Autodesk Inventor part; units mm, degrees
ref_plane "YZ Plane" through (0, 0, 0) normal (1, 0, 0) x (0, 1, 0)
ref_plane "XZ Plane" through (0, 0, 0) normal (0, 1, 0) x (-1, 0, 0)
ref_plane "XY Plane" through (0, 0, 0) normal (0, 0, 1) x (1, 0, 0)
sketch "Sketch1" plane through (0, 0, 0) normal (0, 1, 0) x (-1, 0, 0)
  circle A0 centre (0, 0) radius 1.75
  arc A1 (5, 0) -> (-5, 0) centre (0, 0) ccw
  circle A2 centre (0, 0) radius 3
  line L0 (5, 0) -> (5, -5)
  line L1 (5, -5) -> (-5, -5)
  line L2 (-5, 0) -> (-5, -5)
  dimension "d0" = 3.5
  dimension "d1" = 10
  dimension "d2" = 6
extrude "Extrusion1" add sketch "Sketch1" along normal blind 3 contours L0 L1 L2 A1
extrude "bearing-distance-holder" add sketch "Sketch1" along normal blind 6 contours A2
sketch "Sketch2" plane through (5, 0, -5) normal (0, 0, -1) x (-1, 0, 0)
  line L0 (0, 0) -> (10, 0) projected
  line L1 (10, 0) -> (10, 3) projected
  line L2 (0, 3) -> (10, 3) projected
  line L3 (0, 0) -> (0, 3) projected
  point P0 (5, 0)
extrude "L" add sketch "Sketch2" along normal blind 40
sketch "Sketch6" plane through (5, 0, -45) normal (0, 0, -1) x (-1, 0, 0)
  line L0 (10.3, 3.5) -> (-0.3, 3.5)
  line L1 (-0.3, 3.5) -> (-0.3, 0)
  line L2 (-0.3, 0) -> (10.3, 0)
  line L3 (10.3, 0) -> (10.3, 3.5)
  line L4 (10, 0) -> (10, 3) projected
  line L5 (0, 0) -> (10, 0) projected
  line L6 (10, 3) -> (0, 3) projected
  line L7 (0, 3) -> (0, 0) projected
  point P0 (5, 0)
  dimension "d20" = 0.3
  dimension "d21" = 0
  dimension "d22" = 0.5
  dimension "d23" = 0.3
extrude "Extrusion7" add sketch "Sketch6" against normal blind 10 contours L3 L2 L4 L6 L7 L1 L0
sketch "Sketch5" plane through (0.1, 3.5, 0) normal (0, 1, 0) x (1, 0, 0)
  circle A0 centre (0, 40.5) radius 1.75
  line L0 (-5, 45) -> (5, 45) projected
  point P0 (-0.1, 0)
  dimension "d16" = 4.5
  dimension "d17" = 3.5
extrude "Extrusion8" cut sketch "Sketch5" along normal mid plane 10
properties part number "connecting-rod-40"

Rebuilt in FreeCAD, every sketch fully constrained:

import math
import FreeCAD as App
import Part
import Sketcher
Q = App.Units.Quantity

doc = App.newDocument("Part")
body = doc.addObject("PartDesign::Body", "Body")

# Sketch on XZ plane
sketch1 = doc.addObject("Sketcher::SketchObject", "Sketch")
body.addObject(sketch1)
sketch1.AttachmentSupport = (doc.XZ_Plane, [""])
sketch1.MapMode = "FlatFace"
sketch1.addGeometry(Part.LineSegment(App.Vector(-5, -5, 0), App.Vector(-5, 0, 0)), False)
sketch1.addGeometry(Part.ArcOfCircle(Part.Circle(App.Vector(0, 0, 0), App.Vector(0, 0, 1), 5), math.radians(0), math.radians(180)), False)
sketch1.addGeometry(Part.LineSegment(App.Vector(5, 0, 0), App.Vector(5, -5, 0)), False)
sketch1.addGeometry(Part.LineSegment(App.Vector(5, -5, 0), App.Vector(-5, -5, 0)), False)
sketch1.addGeometry(Part.Circle(App.Vector(0, 0, 0), App.Vector(0, 0, 1), 3), False)
sketch1.addConstraint(Sketcher.Constraint("Tangent", 0, 2, 1, 2))
sketch1.addConstraint(Sketcher.Constraint("Tangent", 1, 1, 2, 1))
sketch1.addConstraint(Sketcher.Constraint("Coincident", 2, 2, 3, 1))
sketch1.addConstraint(Sketcher.Constraint("Coincident", 3, 2, 0, 1))
sketch1.addConstraint(Sketcher.Constraint("Vertical", 0))
sketch1.addConstraint(Sketcher.Constraint("Vertical", 2))
sketch1.addConstraint(Sketcher.Constraint("Horizontal", 3))
sketch1.addConstraint(Sketcher.Constraint("Coincident", 1, 3, -1, 1))
sketch1.addConstraint(Sketcher.Constraint("Coincident", 4, 3, -1, 1))
sketch1.addConstraint(Sketcher.Constraint("Diameter", 4, Q("6 mm")))
sketch1.addConstraint(Sketcher.Constraint("Radius", 1, Q("5 mm")))
sketch1.addConstraint(Sketcher.Constraint("DistanceY", 0, 1, 0, 2, Q("5 mm")))
pad1 = doc.addObject("PartDesign::Pad", "Pad")
body.addObject(pad1)
pad1.Profile = sketch1
pad1.Length = 3
pad1.Reversed = True

# Sketch on XZ plane
sketch2 = doc.addObject("Sketcher::SketchObject", "Sketch001")
body.addObject(sketch2)
sketch2.AttachmentSupport = (doc.XZ_Plane, [""])
sketch2.MapMode = "FlatFace"
sketch2.addGeometry(Part.Circle(App.Vector(0, 0, 0), App.Vector(0, 0, 1), 3), False)
sketch2.addGeometry(Part.Circle(App.Vector(0, 0, 0), App.Vector(0, 0, 1), 1.8), False)
sketch2.addConstraint(Sketcher.Constraint("Coincident", 0, 3, -1, 1))
sketch2.addConstraint(Sketcher.Constraint("Coincident", 1, 3, -1, 1))
sketch2.addConstraint(Sketcher.Constraint("Diameter", 0, Q("6 mm")))
sketch2.addConstraint(Sketcher.Constraint("Diameter", 1, Q("3.5 mm")))
pad2 = doc.addObject("PartDesign::Pad", "Pad001")
body.addObject(pad2)
pad2.Profile = sketch2
pad2.Length = 6
pad2.Reversed = True

# Sketch on XY plane
sketch3 = doc.addObject("Sketcher::SketchObject", "Sketch002")
body.addObject(sketch3)
sketch3.AttachmentSupport = (doc.XY_Plane, [""])
sketch3.MapMode = "FlatFace"
sketch3.AttachmentOffset = App.Placement(App.Vector(0, 0, -5), App.Rotation())
sketch3.addGeometry(Part.LineSegment(App.Vector(5, 3, 0), App.Vector(5, 0, 0)), False)
sketch3.addGeometry(Part.LineSegment(App.Vector(5, 0, 0), App.Vector(-5, 0, 0)), False)
sketch3.addGeometry(Part.LineSegment(App.Vector(-5, 0, 0), App.Vector(-5, 3, 0)), False)
sketch3.addGeometry(Part.LineSegment(App.Vector(-5, 3, 0), App.Vector(5, 3, 0)), False)
sketch3.addConstraint(Sketcher.Constraint("Coincident", 0, 2, 1, 1))
sketch3.addConstraint(Sketcher.Constraint("Coincident", 1, 2, 2, 1))
sketch3.addConstraint(Sketcher.Constraint("Coincident", 2, 2, 3, 1))
sketch3.addConstraint(Sketcher.Constraint("Coincident", 3, 2, 0, 1))
sketch3.addConstraint(Sketcher.Constraint("Vertical", 0))
sketch3.addConstraint(Sketcher.Constraint("Horizontal", 1))
sketch3.addConstraint(Sketcher.Constraint("Vertical", 2))
sketch3.addConstraint(Sketcher.Constraint("Horizontal", 3))
sketch3.addConstraint(Sketcher.Constraint("Symmetric", 0, 2, 1, 2, -1, 1))
sketch3.addConstraint(Sketcher.Constraint("DistanceX", 1, 2, 1, 1, Q("10 mm")))
sketch3.addConstraint(Sketcher.Constraint("DistanceY", 0, 2, 0, 1, Q("3 mm")))
pad3 = doc.addObject("PartDesign::Pad", "Pad002")
body.addObject(pad3)
pad3.Profile = sketch3
pad3.Length = 40
pad3.Reversed = True

# Sketch on XY plane
sketch4 = doc.addObject("Sketcher::SketchObject", "Sketch003")
body.addObject(sketch4)
sketch4.AttachmentSupport = (doc.XY_Plane, [""])
sketch4.MapMode = "FlatFace"
sketch4.AttachmentOffset = App.Placement(App.Vector(0, 0, -45), App.Rotation())
sketch4.addGeometry(Part.LineSegment(App.Vector(-5.3, 0, 0), App.Vector(-5.3, 3.5, 0)), False)
sketch4.addGeometry(Part.LineSegment(App.Vector(-5.3, 3.5, 0), App.Vector(5.3, 3.5, 0)), False)
sketch4.addGeometry(Part.LineSegment(App.Vector(5.3, 3.5, 0), App.Vector(5.3, 0, 0)), False)
sketch4.addGeometry(Part.LineSegment(App.Vector(5.3, 0, 0), App.Vector(5, 0, 0)), False)
sketch4.addGeometry(Part.LineSegment(App.Vector(5, 0, 0), App.Vector(5, 3, 0)), False)
sketch4.addGeometry(Part.LineSegment(App.Vector(5, 3, 0), App.Vector(-5, 3, 0)), False)
sketch4.addGeometry(Part.LineSegment(App.Vector(-5, 3, 0), App.Vector(-5, 0, 0)), False)
sketch4.addGeometry(Part.LineSegment(App.Vector(-5, 0, 0), App.Vector(-5.3, 0, 0)), False)
sketch4.addConstraint(Sketcher.Constraint("Coincident", 0, 2, 1, 1))
sketch4.addConstraint(Sketcher.Constraint("Coincident", 1, 2, 2, 1))
sketch4.addConstraint(Sketcher.Constraint("Coincident", 2, 2, 3, 1))
sketch4.addConstraint(Sketcher.Constraint("Coincident", 3, 2, 4, 1))
sketch4.addConstraint(Sketcher.Constraint("Coincident", 4, 2, 5, 1))
sketch4.addConstraint(Sketcher.Constraint("Coincident", 5, 2, 6, 1))
sketch4.addConstraint(Sketcher.Constraint("Coincident", 6, 2, 7, 1))
sketch4.addConstraint(Sketcher.Constraint("Coincident", 7, 2, 0, 1))
sketch4.addConstraint(Sketcher.Constraint("Vertical", 0))
sketch4.addConstraint(Sketcher.Constraint("Horizontal", 1))
sketch4.addConstraint(Sketcher.Constraint("Vertical", 2))
sketch4.addConstraint(Sketcher.Constraint("Horizontal", 3))
sketch4.addConstraint(Sketcher.Constraint("Vertical", 4))
sketch4.addConstraint(Sketcher.Constraint("Horizontal", 5))
sketch4.addConstraint(Sketcher.Constraint("Vertical", 6))
sketch4.addConstraint(Sketcher.Constraint("Horizontal", 7))
sketch4.addConstraint(Sketcher.Constraint("Symmetric", 3, 2, 6, 2, -1, 1))
sketch4.addConstraint(Sketcher.Constraint("Symmetric", 2, 2, 7, 2, -2))
sketch4.addConstraint(Sketcher.Constraint("DistanceX", 3, 2, 3, 1, Q("0.3 mm")))
sketch4.addConstraint(Sketcher.Constraint("DistanceY", 4, 2, 1, 2, Q("0.5 mm")))
sketch4.addConstraint(Sketcher.Constraint("DistanceX", 5, 2, 5, 1, Q("10 mm")))
sketch4.addConstraint(Sketcher.Constraint("DistanceY", 4, 1, 4, 2, Q("3 mm")))
pad4 = doc.addObject("PartDesign::Pad", "Pad003")
body.addObject(pad4)
pad4.Profile = sketch4
pad4.Length = 10

# Sketch on XZ plane
sketch5 = doc.addObject("Sketcher::SketchObject", "Sketch004")
body.addObject(sketch5)
sketch5.AttachmentSupport = (doc.XZ_Plane, [""])
sketch5.MapMode = "FlatFace"
sketch5.AttachmentOffset = App.Placement(App.Vector(0, 0, -3.5), App.Rotation())
sketch5.addGeometry(Part.Circle(App.Vector(0.1, -40.5, 0), App.Vector(0, 0, 1), 1.8), False)
sketch5.addConstraint(Sketcher.Constraint("Diameter", 0, Q("3.5 mm")))
sketch5.addConstraint(Sketcher.Constraint("DistanceX", -1, 1, 0, 3, Q("0.1 mm")))
sketch5.addConstraint(Sketcher.Constraint("DistanceY", 0, 3, -1, 1, Q("40.5 mm")))
pocket1 = doc.addObject("PartDesign::Pocket", "Pocket")
body.addObject(pocket1)
pocket1.Profile = sketch5
pocket1.Length = 10
pocket1.Midplane = True

doc.recompute()
